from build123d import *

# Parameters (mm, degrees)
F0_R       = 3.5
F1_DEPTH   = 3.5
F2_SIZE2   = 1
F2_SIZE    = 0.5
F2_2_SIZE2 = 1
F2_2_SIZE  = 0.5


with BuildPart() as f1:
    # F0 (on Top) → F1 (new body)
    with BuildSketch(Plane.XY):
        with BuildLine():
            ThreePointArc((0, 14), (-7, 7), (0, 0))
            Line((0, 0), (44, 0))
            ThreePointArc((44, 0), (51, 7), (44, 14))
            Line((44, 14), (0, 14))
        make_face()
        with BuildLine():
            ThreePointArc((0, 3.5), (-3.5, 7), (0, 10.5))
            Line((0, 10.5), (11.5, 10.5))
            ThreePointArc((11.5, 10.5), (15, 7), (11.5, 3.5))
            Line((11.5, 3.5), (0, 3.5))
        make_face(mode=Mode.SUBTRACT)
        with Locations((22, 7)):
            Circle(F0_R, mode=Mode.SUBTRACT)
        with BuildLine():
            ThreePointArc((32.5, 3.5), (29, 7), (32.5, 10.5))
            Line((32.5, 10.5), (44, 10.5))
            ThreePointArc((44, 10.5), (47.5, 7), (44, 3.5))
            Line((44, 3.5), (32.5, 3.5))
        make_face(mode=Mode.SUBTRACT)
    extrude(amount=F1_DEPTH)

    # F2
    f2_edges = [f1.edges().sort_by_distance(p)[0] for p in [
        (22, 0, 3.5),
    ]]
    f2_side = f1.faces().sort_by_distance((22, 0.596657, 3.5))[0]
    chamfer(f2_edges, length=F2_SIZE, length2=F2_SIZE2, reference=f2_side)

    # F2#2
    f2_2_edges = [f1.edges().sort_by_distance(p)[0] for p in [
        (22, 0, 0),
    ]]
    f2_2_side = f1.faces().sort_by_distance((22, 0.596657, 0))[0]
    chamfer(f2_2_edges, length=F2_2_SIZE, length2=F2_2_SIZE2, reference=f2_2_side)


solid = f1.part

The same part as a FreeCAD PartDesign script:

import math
import FreeCAD as App
import Part
import Sketcher

V = App.Vector
Q = App.Units.Quantity


def edges_at(feature, points):
    """Names of the edges that pass closest to the given points."""
    edges = feature.Shape.Edges
    near = lambda p: min(range(len(edges)), key=lambda i: edges[i].distToShape(Part.Vertex(*p))[0])
    return sorted({f"Edge{near(p) + 1}" for p in points})

doc = App.newDocument("Part")
body = doc.addObject("PartDesign::Body", "Body")

sketch1 = body.newObject("Sketcher::SketchObject", "Sketch")
sketch1.AttachmentSupport = (doc.getObject("XY_Plane"), [""])
sketch1.MapMode = "FlatFace"
sketch1.addGeometry([
    Part.ArcOfCircle(Part.Circle(V(0, 7, 0), V(0, 0, 1), 7), math.radians(90), math.radians(270)),
    Part.LineSegment(V(0, 0, 0), V(44, 0, 0)),
    Part.ArcOfCircle(Part.Circle(V(44, 7, 0), V(0, 0, 1), 7), math.radians(-90), math.radians(90)),
    Part.LineSegment(V(44, 14, 0), V(0, 14, 0)),
    Part.LineSegment(V(11.5, 3.5, 0), V(0, 3.5, 0)),
    Part.ArcOfCircle(Part.Circle(V(0, 7, 0), V(0, 0, 1), 3.5), math.radians(90), math.radians(270)),
    Part.LineSegment(V(0, 10.5, 0), V(11.5, 10.5, 0)),
    Part.ArcOfCircle(Part.Circle(V(11.5, 7, 0), V(0, 0, 1), 3.5), math.radians(-90), math.radians(90)),
    Part.Circle(V(22, 7, 0), V(0, 0, 1), 3.5),
    Part.LineSegment(V(44, 3.5, 0), V(32.5, 3.5, 0)),
    Part.ArcOfCircle(Part.Circle(V(32.5, 7, 0), V(0, 0, 1), 3.5), math.radians(90), math.radians(270)),
    Part.LineSegment(V(32.5, 10.5, 0), V(44, 10.5, 0)),
    Part.ArcOfCircle(Part.Circle(V(44, 7, 0), V(0, 0, 1), 3.5), math.radians(-90), math.radians(90)),
], False)
sketch1.addConstraint([
    Sketcher.Constraint("Tangent", 0, 2, 1, 1),
    Sketcher.Constraint("Tangent", 1, 2, 2, 1),
    Sketcher.Constraint("Tangent", 2, 2, 3, 1),
    Sketcher.Constraint("Tangent", 3, 2, 0, 1),
    Sketcher.Constraint("Tangent", 4, 2, 5, 2),
    Sketcher.Constraint("Tangent", 5, 1, 6, 1),
    Sketcher.Constraint("Tangent", 6, 2, 7, 2),
    Sketcher.Constraint("Tangent", 7, 1, 4, 1),
    Sketcher.Constraint("Tangent", 9, 2, 10, 2),
    Sketcher.Constraint("Tangent", 10, 1, 11, 1),
    Sketcher.Constraint("Tangent", 11, 2, 12, 2),
    Sketcher.Constraint("Tangent", 12, 1, 9, 1),
    Sketcher.Constraint("Horizontal", 1),
    Sketcher.Constraint("Horizontal", 3),
    Sketcher.Constraint("Horizontal", 4),
    Sketcher.Constraint("Horizontal", 6),
    Sketcher.Constraint("Horizontal", 9),
    Sketcher.Constraint("Horizontal", 11),
    Sketcher.Constraint("Coincident", 0, 2, -1, 1),
    Sketcher.Constraint("Coincident", 5, 3, 0, 3),
    Sketcher.Constraint("Coincident", 12, 3, 2, 3),
    Sketcher.Constraint("Equal", 7, 8),
    Sketcher.Constraint("Equal", 8, 10),
    Sketcher.Constraint("Horizontal", 7, 3, 8, 3),
    Sketcher.Constraint("Equal", 6, 9),
    Sketcher.Constraint("Diameter", 8, Q("7 mm")),
    Sketcher.Constraint("Radius", 0, Q("7 mm")),
    Sketcher.Constraint("DistanceX", 1, 1, 1, 2, Q("44 mm")),
    Sketcher.Constraint("DistanceX", 4, 2, 4, 1, Q("11.5 mm")),
    Sketcher.Constraint("DistanceX", -1, 1, 8, 3, Q("22 mm")),
])
pad1 = body.newObject("PartDesign::Pad", "Pad")
pad1.Profile = sketch1
pad1.Length = 3.5
doc.recompute()

chamfer = body.newObject("PartDesign::Chamfer", "Chamfer")
chamfer.Base = (pad1, edges_at(pad1, [(22, 0, 3.5)]))
chamfer.ChamferType = "Two distances"
chamfer.Size = 0.5
chamfer.Size2 = 1
chamfer.FlipDirection = True
doc.recompute()

chamfer2 = body.newObject("PartDesign::Chamfer", "Chamfer001")
chamfer2.Base = (chamfer, edges_at(chamfer, [(22, 0, 0)]))
chamfer2.ChamferType = "Two distances"
chamfer2.Size = 0.5
chamfer2.Size2 = 1

doc.recompute()
